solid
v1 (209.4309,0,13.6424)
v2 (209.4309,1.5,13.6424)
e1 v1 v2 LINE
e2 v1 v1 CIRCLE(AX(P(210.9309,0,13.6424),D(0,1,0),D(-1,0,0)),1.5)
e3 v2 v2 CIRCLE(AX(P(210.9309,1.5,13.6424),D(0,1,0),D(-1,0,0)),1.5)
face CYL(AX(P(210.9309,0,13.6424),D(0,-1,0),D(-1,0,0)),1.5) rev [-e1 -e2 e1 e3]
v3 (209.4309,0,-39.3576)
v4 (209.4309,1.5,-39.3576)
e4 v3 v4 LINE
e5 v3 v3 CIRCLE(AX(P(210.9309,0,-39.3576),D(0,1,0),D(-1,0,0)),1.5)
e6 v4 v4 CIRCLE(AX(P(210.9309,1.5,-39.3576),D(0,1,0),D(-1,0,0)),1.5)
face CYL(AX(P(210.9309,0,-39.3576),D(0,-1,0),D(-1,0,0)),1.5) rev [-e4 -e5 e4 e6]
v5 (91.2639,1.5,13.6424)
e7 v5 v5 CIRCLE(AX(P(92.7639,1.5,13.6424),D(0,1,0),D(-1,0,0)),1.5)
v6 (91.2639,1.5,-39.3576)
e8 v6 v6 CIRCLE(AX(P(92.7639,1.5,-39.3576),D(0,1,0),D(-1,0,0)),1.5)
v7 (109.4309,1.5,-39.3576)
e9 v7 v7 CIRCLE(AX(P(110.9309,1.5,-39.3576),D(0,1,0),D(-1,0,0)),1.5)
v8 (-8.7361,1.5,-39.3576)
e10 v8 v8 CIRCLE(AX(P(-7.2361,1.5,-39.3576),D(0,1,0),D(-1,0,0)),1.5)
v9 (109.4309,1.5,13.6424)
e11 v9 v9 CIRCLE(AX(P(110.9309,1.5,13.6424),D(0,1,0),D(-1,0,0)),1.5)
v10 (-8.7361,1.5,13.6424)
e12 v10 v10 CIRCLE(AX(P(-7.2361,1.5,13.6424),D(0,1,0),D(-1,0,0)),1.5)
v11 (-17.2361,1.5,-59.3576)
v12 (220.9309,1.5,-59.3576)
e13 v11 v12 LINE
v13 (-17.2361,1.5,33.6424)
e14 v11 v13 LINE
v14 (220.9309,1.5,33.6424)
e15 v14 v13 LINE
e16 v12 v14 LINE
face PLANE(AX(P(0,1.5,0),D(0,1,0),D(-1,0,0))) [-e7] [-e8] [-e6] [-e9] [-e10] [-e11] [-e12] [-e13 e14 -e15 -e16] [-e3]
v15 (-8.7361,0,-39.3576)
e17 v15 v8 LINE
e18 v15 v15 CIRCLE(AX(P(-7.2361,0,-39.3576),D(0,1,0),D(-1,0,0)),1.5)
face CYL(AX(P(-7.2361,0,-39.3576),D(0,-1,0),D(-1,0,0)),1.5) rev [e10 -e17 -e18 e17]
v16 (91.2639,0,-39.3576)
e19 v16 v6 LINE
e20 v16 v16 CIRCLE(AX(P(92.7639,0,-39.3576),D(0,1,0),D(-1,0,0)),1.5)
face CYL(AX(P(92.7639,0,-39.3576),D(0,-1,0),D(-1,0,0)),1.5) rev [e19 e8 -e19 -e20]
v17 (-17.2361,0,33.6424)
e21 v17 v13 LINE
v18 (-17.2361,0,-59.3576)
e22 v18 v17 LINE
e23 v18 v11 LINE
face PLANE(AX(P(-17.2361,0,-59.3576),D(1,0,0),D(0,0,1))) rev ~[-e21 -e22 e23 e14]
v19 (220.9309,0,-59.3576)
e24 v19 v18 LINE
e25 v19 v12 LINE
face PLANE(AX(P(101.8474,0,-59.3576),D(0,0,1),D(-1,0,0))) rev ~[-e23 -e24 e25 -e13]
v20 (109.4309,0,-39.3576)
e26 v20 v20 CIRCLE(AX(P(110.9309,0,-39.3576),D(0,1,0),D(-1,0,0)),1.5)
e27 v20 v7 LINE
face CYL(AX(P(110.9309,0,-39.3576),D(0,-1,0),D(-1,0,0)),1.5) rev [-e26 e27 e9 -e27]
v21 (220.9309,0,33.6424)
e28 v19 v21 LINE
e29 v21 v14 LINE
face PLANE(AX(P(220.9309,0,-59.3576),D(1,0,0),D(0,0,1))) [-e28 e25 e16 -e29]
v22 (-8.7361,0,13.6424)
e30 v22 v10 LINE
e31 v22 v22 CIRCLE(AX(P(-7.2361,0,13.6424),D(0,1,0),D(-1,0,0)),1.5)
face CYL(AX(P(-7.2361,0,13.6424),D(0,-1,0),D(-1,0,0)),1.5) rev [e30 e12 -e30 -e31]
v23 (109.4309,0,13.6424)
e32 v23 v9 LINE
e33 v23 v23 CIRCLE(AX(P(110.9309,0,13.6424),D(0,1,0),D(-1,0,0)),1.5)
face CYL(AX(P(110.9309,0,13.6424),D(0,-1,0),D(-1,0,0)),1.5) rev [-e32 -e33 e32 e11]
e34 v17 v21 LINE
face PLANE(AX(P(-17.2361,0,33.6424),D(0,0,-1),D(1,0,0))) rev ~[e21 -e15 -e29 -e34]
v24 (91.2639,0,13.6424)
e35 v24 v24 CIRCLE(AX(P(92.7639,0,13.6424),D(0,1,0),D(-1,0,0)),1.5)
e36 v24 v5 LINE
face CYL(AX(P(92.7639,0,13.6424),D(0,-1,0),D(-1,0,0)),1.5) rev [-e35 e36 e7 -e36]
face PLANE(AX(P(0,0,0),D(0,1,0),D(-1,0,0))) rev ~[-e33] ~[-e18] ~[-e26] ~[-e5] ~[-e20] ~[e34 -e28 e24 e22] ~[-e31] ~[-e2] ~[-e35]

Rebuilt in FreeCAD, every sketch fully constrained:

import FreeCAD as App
import Part
import Sketcher

V = App.Vector

doc = App.newDocument("Part")
body = doc.addObject("PartDesign::Body", "Body")

# Sketch on XZ plane
sketch1 = body.newObject("Sketcher::SketchObject", "Sketch")
sketch1.AttachmentSupport = (doc.getObject("XZ_Plane"), [""])
sketch1.MapMode = "FlatFace"
sketch1.addGeometry([
    Part.LineSegment(V(-17.2361, -59.3576, 0), V(-17.2361, 33.6424, 0)),  # 0
    Part.LineSegment(V(-17.2361, 33.6424, 0), V(220.9309, 33.6424, 0)),  # 1
    Part.LineSegment(V(220.9309, 33.6424, 0), V(220.9309, -59.3576, 0)),  # 2
    Part.LineSegment(V(220.9309, -59.3576, 0), V(-17.2361, -59.3576, 0)),  # 3
    Part.Circle(V(92.7639, -39.3576, 0), V(0, 0, 1), 1.5),  # 4
    Part.Circle(V(-7.2361, -39.3576, 0), V(0, 0, 1), 1.5),  # 5
    Part.Circle(V(92.7639, 13.6424, 0), V(0, 0, 1), 1.5),  # 6
    Part.Circle(V(-7.2361, 13.6424, 0), V(0, 0, 1), 1.5),  # 7
    Part.Circle(V(110.9309, 13.6424, 0), V(0, 0, 1), 1.5),  # 8
    Part.Circle(V(210.9309, -39.3576, 0), V(0, 0, 1), 1.5),  # 9
    Part.Circle(V(110.9309, -39.3576, 0), V(0, 0, 1), 1.5),  # 10
    Part.Circle(V(210.9309, 13.6424, 0), V(0, 0, 1), 1.5),  # 11
], False)
sketch1.addConstraint([
    Sketcher.Constraint("Coincident", 0, 2, 1, 1),
    Sketcher.Constraint("Coincident", 1, 2, 2, 1),
    Sketcher.Constraint("Coincident", 2, 2, 3, 1),
    Sketcher.Constraint("Coincident", 3, 2, 0, 1),
    Sketcher.Constraint("Vertical", 0),
    Sketcher.Constraint("Horizontal", 1),
    Sketcher.Constraint("Vertical", 2),
    Sketcher.Constraint("Horizontal", 3),
    Sketcher.Constraint("Equal", 4, 5),
    Sketcher.Constraint("Equal", 5, 6),
    Sketcher.Constraint("Equal", 6, 7),
    Sketcher.Constraint("Equal", 7, 8),
    Sketcher.Constraint("Equal", 8, 9),
    Sketcher.Constraint("Equal", 9, 10),
    Sketcher.Constraint("Equal", 10, 11),
    Sketcher.Constraint("Horizontal", 4, 3, 5, 3),
    Sketcher.Constraint("Horizontal", 6, 3, 7, 3),
    Sketcher.Constraint("Horizontal", 7, 3, 8, 3),
    Sketcher.Constraint("Horizontal", 5, 3, 9, 3),
    Sketcher.Constraint("Horizontal", 9, 3, 10, 3),
    Sketcher.Constraint("Horizontal", 8, 3, 11, 3),
    Sketcher.Constraint("Vertical", 4, 3, 6, 3),
    Sketcher.Constraint("Vertical", 5, 3, 7, 3),
    Sketcher.Constraint("Vertical", 8, 3, 10, 3),
    Sketcher.Constraint("Vertical", 9, 3, 11, 3),
    Sketcher.Constraint("Diameter", 4, 3.0),
    Sketcher.Constraint("DistanceX", 5, 3, 4, 3, 100.0),
    Sketcher.Constraint("DistanceY", 4, 3, 6, 3, 53.0),
    Sketcher.Constraint("DistanceX", 8, 3, 9, 3, 100.0),
    Sketcher.Constraint("DistanceX", 0, 2, 7, 3, 10.0),
    Sketcher.Constraint("DistanceY", 7, 3, 0, 2, 20.0),
    Sketcher.Constraint("DistanceX", 11, 3, 1, 2, 10.0),
    Sketcher.Constraint("DistanceY", 2, 2, 9, 3, 20.0),
    Sketcher.Constraint("DistanceX", 6, 3, 8, 3, 18.167),
    Sketcher.Constraint("DistanceX", -1, 1, 4, 3, 92.764),
    Sketcher.Constraint("DistanceY", 4, 3, -1, 1, 39.3576),
])
pad1 = body.newObject("PartDesign::Pad", "Pad")
pad1.Profile = sketch1
pad1.Length = 1.5
pad1.Reversed = True

doc.recompute()
